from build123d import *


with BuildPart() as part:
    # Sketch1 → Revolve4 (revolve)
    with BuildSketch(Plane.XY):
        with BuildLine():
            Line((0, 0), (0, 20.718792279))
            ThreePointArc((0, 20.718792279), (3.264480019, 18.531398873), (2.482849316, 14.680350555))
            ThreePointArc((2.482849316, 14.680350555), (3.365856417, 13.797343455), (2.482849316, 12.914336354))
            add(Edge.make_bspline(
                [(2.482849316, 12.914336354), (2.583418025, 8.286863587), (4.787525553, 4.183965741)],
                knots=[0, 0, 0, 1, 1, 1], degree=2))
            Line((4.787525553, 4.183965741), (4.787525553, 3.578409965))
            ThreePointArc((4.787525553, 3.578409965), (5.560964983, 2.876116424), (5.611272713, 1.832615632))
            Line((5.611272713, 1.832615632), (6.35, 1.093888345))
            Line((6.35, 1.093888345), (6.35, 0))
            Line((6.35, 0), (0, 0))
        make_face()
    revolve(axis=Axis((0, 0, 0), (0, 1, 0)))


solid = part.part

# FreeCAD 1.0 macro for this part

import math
import FreeCAD as App
import Part
import Sketcher
Q = App.Units.Quantity

doc = App.newDocument("Part")
params = doc.addObject("Spreadsheet::Sheet", "Params")
for row, (alias, value) in enumerate([
    ("sketch1_width", "0.25 in"),
    ("revolution_angle", "360 deg"),
], start=1):
    params.set(f"A{row}", alias)
    params.set(f"B{row}", "=" + value)
    params.setAlias(f"B{row}", alias)

body = doc.addObject("PartDesign::Body", "Body")

sketch1 = body.newObject("Sketcher::SketchObject", "Sketch")
sketch1.AttachmentSupport = (doc.getObject("XY_Plane"), [""])
sketch1.MapMode = "FlatFace"
sketch1.addGeometry([
    Part.LineSegment(App.Vector(0, 20.718792, 0), App.Vector(0, 0, 0)),
    Part.LineSegment(App.Vector(0, 0, 0), App.Vector(6.35, 0, 0)),
    Part.LineSegment(App.Vector(6.35, 0, 0), App.Vector(6.35, 1.093888, 0)),
    Part.LineSegment(App.Vector(6.35, 1.093888, 0), App.Vector(5.611273, 1.832616, 0)),
    Part.ArcOfCircle(Part.Circle(App.Vector(4.326502, 2.293639, 0), App.Vector(0, 0, 1), 1.364983), math.radians(-19.739877), math.radians(70.260124)),
    Part.LineSegment(App.Vector(4.787526, 3.57841, 0), App.Vector(4.787526, 4.183966, 0)),
    Part.BSplineCurve([App.Vector(2.482849, 12.914336, 0), App.Vector(2.583418, 8.286864, 0), App.Vector(4.787526, 4.183966, 0)], [3, 3], [0, 1], False, 2, [1, 1, 1], False),
    Part.ArcOfCircle(Part.Circle(App.Vector(2.482849, 13.797343, 0), App.Vector(0, 0, 1), 0.883007), math.radians(-90), math.radians(90)),
    Part.ArcOfCircle(Part.Circle(App.Vector(0, 17.18913, 0), App.Vector(0, 0, 1), 3.529662), math.radians(-45.297634), math.radians(90)),
], False)
sketch1.addConstraint([
    Sketcher.Constraint("Block", 6),
    Sketcher.Constraint("Coincident", 0, 2, 1, 1),
    Sketcher.Constraint("Coincident", 1, 2, 2, 1),
    Sketcher.Constraint("Coincident", 2, 2, 3, 1),
    Sketcher.Constraint("Coincident", 3, 2, 4, 1),
    Sketcher.Constraint("Coincident", 4, 2, 5, 1),
    Sketcher.Constraint("Coincident", 5, 2, 6, 2),
    Sketcher.Constraint("Coincident", 6, 1, 7, 1),
    Sketcher.Constraint("Coincident", 7, 2, 8, 1),
    Sketcher.Constraint("Coincident", 8, 2, 0, 1),
    Sketcher.Constraint("Vertical", 0),
    Sketcher.Constraint("Horizontal", 1),
    Sketcher.Constraint("Vertical", 2),
    Sketcher.Constraint("Vertical", 5),
    Sketcher.Constraint("Coincident", 0, 2, -1, 1),
    Sketcher.Constraint("PointOnObject", 8, 3, -2),
    Sketcher.Constraint("Angle", 3, Q("135 deg")),
    Sketcher.Constraint("DistanceX", 1, 1, 1, 2, Q("0.25 in")),
    Sketcher.Constraint("Radius", 4, Q("1.364983 mm")),
    Sketcher.Constraint("Radius", 7, Q("0.883007 mm")),
    Sketcher.Constraint("Radius", 8, Q("3.529662 mm")),
    Sketcher.Constraint("DistanceY", 2, 1, 2, 2, Q("1.093888 mm")),
    Sketcher.Constraint("DistanceX", -1, 1, 4, 3, Q("4.326502 mm")),
    Sketcher.Constraint("Distance", 3, Q("1.044718 mm")),
    Sketcher.Constraint("DistanceY", 0, 2, 0, 1, Q("20.718792 mm")),
    Sketcher.Constraint("DistanceX", -1, 1, 7, 3, Q("2.482849 mm")),
])
sketch1.setExpression("Constraints[17]", "Params.sketch1_width")
revolution = body.newObject("PartDesign::Revolution", "Revolution")
revolution.Profile = sketch1
revolution.ReferenceAxis = (sketch1, ["V_Axis"])
revolution.setExpression("Angle", "Params.revolution_angle")

doc.recompute()
